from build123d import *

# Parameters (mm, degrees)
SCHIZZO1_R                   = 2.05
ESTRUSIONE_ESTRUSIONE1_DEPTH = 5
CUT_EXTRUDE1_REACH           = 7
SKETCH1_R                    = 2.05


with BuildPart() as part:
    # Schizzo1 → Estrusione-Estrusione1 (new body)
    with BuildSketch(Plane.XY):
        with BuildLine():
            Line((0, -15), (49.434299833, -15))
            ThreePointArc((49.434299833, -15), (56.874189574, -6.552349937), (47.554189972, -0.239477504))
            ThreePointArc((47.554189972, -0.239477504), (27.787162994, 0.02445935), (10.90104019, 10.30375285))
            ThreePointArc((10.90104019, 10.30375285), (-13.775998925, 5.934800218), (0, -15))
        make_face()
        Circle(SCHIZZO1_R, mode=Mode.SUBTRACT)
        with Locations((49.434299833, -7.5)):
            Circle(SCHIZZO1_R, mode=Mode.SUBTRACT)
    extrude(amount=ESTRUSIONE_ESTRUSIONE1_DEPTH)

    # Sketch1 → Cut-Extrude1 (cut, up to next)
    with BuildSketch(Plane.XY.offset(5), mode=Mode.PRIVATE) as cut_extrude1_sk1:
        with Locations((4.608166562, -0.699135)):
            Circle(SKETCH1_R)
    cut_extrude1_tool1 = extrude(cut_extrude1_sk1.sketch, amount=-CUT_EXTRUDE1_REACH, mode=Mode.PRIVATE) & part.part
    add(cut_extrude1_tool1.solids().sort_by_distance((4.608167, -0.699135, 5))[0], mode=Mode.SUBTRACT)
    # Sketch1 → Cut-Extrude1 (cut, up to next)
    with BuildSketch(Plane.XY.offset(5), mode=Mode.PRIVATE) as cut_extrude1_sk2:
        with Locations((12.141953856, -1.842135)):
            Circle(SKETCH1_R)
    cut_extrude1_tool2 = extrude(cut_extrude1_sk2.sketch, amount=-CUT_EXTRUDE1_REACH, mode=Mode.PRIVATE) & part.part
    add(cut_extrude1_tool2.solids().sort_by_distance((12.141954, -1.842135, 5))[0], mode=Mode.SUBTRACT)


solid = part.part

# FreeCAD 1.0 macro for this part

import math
import FreeCAD as App
import Part
import Sketcher

doc = App.newDocument("Part")
params = doc.addObject("Spreadsheet::Sheet", "Params")
for row, (alias, value) in enumerate([
    ("sketch1_radius", "15 mm"),
    ("sketch1_diameter", "4.1 mm"),
    ("sketch1_radius2", "7.5 mm"),
    ("sketch1_radius3", "37.5 mm"),
    ("pad1_length", "5 mm"),
    ("sketch2_diameter", "4.1 mm"),
    ("sketch3_diameter", "4.1 mm"),
], start=1):
    params.set(f"A{row}", alias)
    params.set(f"B{row}", "=" + value)
    params.setAlias(f"B{row}", alias)

body = doc.addObject("PartDesign::Body", "Body")

# Sketch on XY plane
sketch1 = body.newObject("Sketcher::SketchObject", "Sketch")
sketch1.AttachmentSupport = (doc.getObject("XY_Plane"), [""])
sketch1.MapMode = "FlatFace"
sketch1.addGeometry(Part.LineSegment(App.Vector(0, -15, 0), App.Vector(49.4, -15, 0)), False)
sketch1.addGeometry(Part.ArcOfCircle(Part.Circle(App.Vector(49.4, -7.5, 0), App.Vector(0, 0, 1), 7.5), math.radians(-90), math.radians(105)), False)
sketch1.addGeometry(Part.ArcOfCircle(Part.Circle(App.Vector(38.2, 36.1, 0), App.Vector(0, 0, 1), 37.5), math.radians(-137), math.radians(-75)), False)
sketch1.addGeometry(Part.ArcOfCircle(Part.Circle(App.Vector(0, 0, 0), App.Vector(0, 0, 1), 15), math.radians(43), math.radians(270)), False)
sketch1.addGeometry(Part.Circle(App.Vector(49.4, -7.5, 0), App.Vector(0, 0, 1), 2), False)
sketch1.addGeometry(Part.Circle(App.Vector(0, 0, 0), App.Vector(0, 0, 1), 2), False)
sketch1.addConstraint(Sketcher.Constraint("Tangent", 0, 2, 1, 1))
sketch1.addConstraint(Sketcher.Constraint("Tangent", 1, 2, 2, 2))
sketch1.addConstraint(Sketcher.Constraint("Tangent", 2, 1, 3, 1))
sketch1.addConstraint(Sketcher.Constraint("Tangent", 3, 2, 0, 1))
sketch1.addConstraint(Sketcher.Constraint("Horizontal", 0))
sketch1.addConstraint(Sketcher.Constraint("Coincident", 3, 3, -1, 1))
sketch1.addConstraint(Sketcher.Constraint("Coincident", 5, 3, -1, 1))
sketch1.addConstraint(Sketcher.Constraint("Coincident", 4, 3, 1, 3))
sketch1.addConstraint(Sketcher.Constraint("Equal", 4, 5))
sketch1.addConstraint(Sketcher.Constraint("Radius", 3, 15.0))
sketch1.addConstraint(Sketcher.Constraint("Diameter", 4, 4.1))
sketch1.addConstraint(Sketcher.Constraint("Radius", 1, 7.5))
sketch1.addConstraint(Sketcher.Constraint("Radius", 2, 37.5))
sketch1.addConstraint(Sketcher.Constraint("DistanceX", 0, 1, 0, 2, 49.4343))
sketch1.setExpression("Constraints[9]", "Params.sketch1_radius")
sketch1.setExpression("Constraints[10]", "Params.sketch1_diameter")
sketch1.setExpression("Constraints[11]", "Params.sketch1_radius2")
sketch1.setExpression("Constraints[12]", "Params.sketch1_radius3")
pad1 = body.newObject("PartDesign::Pad", "Pad")
pad1.Profile = sketch1
pad1.setExpression("Length", "Params.pad1_length")

# Sketch on XY plane
sketch2 = body.newObject("Sketcher::SketchObject", "Sketch001")
sketch2.AttachmentSupport = (doc.getObject("XY_Plane"), [""])
sketch2.MapMode = "FlatFace"
sketch2.AttachmentOffset = App.Placement(App.Vector(0, 0, 5), App.Rotation())
sketch2.addGeometry(Part.Circle(App.Vector(4.6, -0.7, 0), App.Vector(0, 0, 1), 2), False)
sketch2.addConstraint(Sketcher.Constraint("Diameter", 0, 4.1))
sketch2.addConstraint(Sketcher.Constraint("DistanceX", -1, 1, 0, 3, 4.608167))
sketch2.addConstraint(Sketcher.Constraint("DistanceY", 0, 3, -1, 1, 0.699135))
sketch2.setExpression("Constraints[0]", "Params.sketch2_diameter")
pocket1 = body.newObject("PartDesign::Pocket", "Pocket")
pocket1.Profile = sketch2
pocket1.Type = "UpToFirst"

# Sketch on XY plane
sketch3 = body.newObject("Sketcher::SketchObject", "Sketch002")
sketch3.AttachmentSupport = (doc.getObject("XY_Plane"), [""])
sketch3.MapMode = "FlatFace"
sketch3.AttachmentOffset = App.Placement(App.Vector(0, 0, 5), App.Rotation())
sketch3.addGeometry(Part.Circle(App.Vector(12.1, -1.8, 0), App.Vector(0, 0, 1), 2), False)
sketch3.addConstraint(Sketcher.Constraint("Diameter", 0, 4.1))
sketch3.addConstraint(Sketcher.Constraint("DistanceX", -1, 1, 0, 3, 12.141954))
sketch3.addConstraint(Sketcher.Constraint("DistanceY", 0, 3, -1, 1, 1.842135))
sketch3.setExpression("Constraints[0]", "Params.sketch3_diameter")
pocket2 = body.newObject("PartDesign::Pocket", "Pocket001")
pocket2.Profile = sketch3
pocket2.Type = "UpToFirst"

doc.recompute()
